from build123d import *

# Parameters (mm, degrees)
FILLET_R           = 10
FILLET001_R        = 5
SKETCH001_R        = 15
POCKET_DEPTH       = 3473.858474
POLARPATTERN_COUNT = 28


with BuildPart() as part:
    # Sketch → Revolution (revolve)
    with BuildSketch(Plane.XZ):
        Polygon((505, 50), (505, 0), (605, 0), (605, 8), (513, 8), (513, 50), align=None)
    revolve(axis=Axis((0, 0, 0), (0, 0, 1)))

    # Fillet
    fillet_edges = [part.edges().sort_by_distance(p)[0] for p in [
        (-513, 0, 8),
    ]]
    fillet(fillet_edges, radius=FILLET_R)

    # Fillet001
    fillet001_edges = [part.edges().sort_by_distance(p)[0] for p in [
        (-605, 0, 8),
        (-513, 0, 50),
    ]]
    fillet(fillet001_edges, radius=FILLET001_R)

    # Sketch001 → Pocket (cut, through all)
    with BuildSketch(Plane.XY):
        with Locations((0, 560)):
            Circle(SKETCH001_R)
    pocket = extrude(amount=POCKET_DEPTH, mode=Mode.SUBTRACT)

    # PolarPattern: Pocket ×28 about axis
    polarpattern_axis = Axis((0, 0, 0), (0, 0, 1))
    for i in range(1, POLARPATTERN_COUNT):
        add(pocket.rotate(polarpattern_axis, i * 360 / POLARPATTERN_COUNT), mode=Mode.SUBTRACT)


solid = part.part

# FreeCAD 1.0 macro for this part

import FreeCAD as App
import Part
import Sketcher
from FreeCAD import Vector


def edges_at(feature, points):
    """Names of the edges that pass closest to the given points."""
    edges = feature.Shape.Edges
    near = lambda p: min(range(len(edges)), key=lambda i: edges[i].distToShape(Part.Vertex(*p))[0])
    return sorted({f"Edge{near(p) + 1}" for p in points})


def add_polygon(sketch, points):
    """Adds a closed chain of lines whose ends are joined by coincident constraints."""
    first, n = sketch.GeometryCount, len(points)
    for a, b in zip(points, points[1:] + points[:1]):
        sketch.addGeometry(Part.LineSegment(App.Vector(*a, 0), App.Vector(*b, 0)), False)
    for i in range(n):
        sketch.addConstraint(Sketcher.Constraint("Coincident", first + i, 2, first + (i + 1) % n, 1))

doc = App.newDocument("Part")
body = doc.addObject("PartDesign::Body", "Body")

# Sketch on XZ plane
sketch1 = doc.addObject("Sketcher::SketchObject", "Sketch")
body.addObject(sketch1)
sketch1.AttachmentSupport = (doc.XZ_Plane, [""])
sketch1.MapMode = "FlatFace"
add_polygon(sketch1, [(505, 50), (505, 0), (605, 0), (605, 8), (513, 8), (513, 50)])  # lines 0-5
sketch1.addConstraint(Sketcher.Constraint("Vertical", 0))
sketch1.addConstraint(Sketcher.Constraint("Horizontal", 1))
sketch1.addConstraint(Sketcher.Constraint("Vertical", 2))
sketch1.addConstraint(Sketcher.Constraint("Horizontal", 3))
sketch1.addConstraint(Sketcher.Constraint("Vertical", 4))
sketch1.addConstraint(Sketcher.Constraint("Horizontal", 5))
sketch1.addConstraint(Sketcher.Constraint("PointOnObject", 0, 2, -1))
sketch1.addConstraint(Sketcher.Constraint("Equal", 5, 2))
sketch1.addConstraint(Sketcher.Constraint("DistanceX", 1, 1, 1, 2, 100.0))
sketch1.addConstraint(Sketcher.Constraint("DistanceX", 3, 2, 3, 1, 92.0))
sketch1.addConstraint(Sketcher.Constraint("DistanceY", 0, 2, 0, 1, 50.0))
sketch1.addConstraint(Sketcher.Constraint("DistanceX", -1, 1, 0, 2, 505.0))
revolution = doc.addObject("PartDesign::Revolution", "Revolution")
body.addObject(revolution)
revolution.Profile = sketch1
revolution.ReferenceAxis = (sketch1, ["V_Axis"])
revolution.Angle = 360
doc.recompute()

fillet = doc.addObject("PartDesign::Fillet", "Fillet")
body.addObject(fillet)
fillet.Base = (revolution, edges_at(revolution, [(-513, 0, 8)]))
fillet.Radius = 10
doc.recompute()

fillet2 = doc.addObject("PartDesign::Fillet", "Fillet001")
body.addObject(fillet2)
fillet2.Base = (fillet, edges_at(fillet, [(-605, 0, 8), (-513, 0, 50)]))
fillet2.Radius = 5

# Sketch on XY plane
sketch2 = doc.addObject("Sketcher::SketchObject", "Sketch001")
body.addObject(sketch2)
sketch2.AttachmentSupport = (doc.XY_Plane, [""])
sketch2.MapMode = "FlatFace"
sketch2.addGeometry(Part.Circle(Vector(0, 560, 0), Vector(0, 0, 1), 15), False)
sketch2.addConstraint(Sketcher.Constraint("PointOnObject", 0, 3, -2))
sketch2.addConstraint(Sketcher.Constraint("Diameter", 0, 30.0))
sketch2.addConstraint(Sketcher.Constraint("DistanceY", -1, 1, 0, 3, 560.0))
pocket1 = doc.addObject("PartDesign::Pocket", "Pocket")
body.addObject(pocket1)
pocket1.Profile = sketch2
pocket1.Type = "ThroughAll"
pocket1.Reversed = True
doc.recompute()

polarpattern = doc.addObject("PartDesign::PolarPattern", "PolarPattern")
body.addObject(polarpattern)
polarpattern.Originals = [pocket1]
polarpattern.Axis = (doc.Z_Axis, [""])
polarpattern.Angle = 360
polarpattern.Occurrences = 28
body.Tip = polarpattern

doc.recompute()
